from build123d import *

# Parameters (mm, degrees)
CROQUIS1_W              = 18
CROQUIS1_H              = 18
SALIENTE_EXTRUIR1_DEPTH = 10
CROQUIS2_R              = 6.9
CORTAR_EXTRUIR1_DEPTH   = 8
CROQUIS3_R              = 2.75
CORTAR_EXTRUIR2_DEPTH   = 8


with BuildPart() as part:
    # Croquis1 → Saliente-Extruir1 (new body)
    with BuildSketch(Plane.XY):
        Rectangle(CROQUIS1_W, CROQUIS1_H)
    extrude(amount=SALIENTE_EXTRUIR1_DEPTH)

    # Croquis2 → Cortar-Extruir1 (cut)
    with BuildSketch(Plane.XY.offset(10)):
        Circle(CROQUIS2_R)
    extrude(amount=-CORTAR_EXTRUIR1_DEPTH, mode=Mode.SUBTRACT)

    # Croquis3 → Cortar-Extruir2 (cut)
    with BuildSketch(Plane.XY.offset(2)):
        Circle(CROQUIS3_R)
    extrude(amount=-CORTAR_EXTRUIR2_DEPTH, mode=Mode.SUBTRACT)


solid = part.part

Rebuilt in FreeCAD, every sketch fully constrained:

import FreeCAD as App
import Part
import Sketcher

V = App.Vector

doc = App.newDocument("Part")
body = doc.addObject("PartDesign::Body", "Body")

# Sketch on XY plane
sketch1 = body.newObject("Sketcher::SketchObject", "Sketch")
sketch1.AttachmentSupport = (doc.getObject("XY_Plane"), [""])
sketch1.MapMode = "FlatFace"
sketch1.addGeometry(Part.LineSegment(V(-9, 9, 0), V(-9, -9, 0)), False)
sketch1.addGeometry(Part.LineSegment(V(-9, -9, 0), V(9, -9, 0)), False)
sketch1.addGeometry(Part.LineSegment(V(9, -9, 0), V(9, 9, 0)), False)
sketch1.addGeometry(Part.LineSegment(V(9, 9, 0), V(-9, 9, 0)), False)
sketch1.addConstraint(Sketcher.Constraint("Coincident", 0, 2, 1, 1))
sketch1.addConstraint(Sketcher.Constraint("Coincident", 1, 2, 2, 1))
sketch1.addConstraint(Sketcher.Constraint("Coincident", 2, 2, 3, 1))
sketch1.addConstraint(Sketcher.Constraint("Coincident", 3, 2, 0, 1))
sketch1.addConstraint(Sketcher.Constraint("Vertical", 0))
sketch1.addConstraint(Sketcher.Constraint("Horizontal", 1))
sketch1.addConstraint(Sketcher.Constraint("Vertical", 2))
sketch1.addConstraint(Sketcher.Constraint("Horizontal", 3))
sketch1.addConstraint(Sketcher.Constraint("Symmetric", 0, 2, 2, 2, -1, 1))
sketch1.addConstraint(Sketcher.Constraint("Equal", 3, 0))
sketch1.addConstraint(Sketcher.Constraint("DistanceX", 1, 1, 1, 2, 18.0))
pad1 = body.newObject("PartDesign::Pad", "Pad")
pad1.Profile = sketch1
pad1.Length = 10

# Sketch on XY plane
sketch2 = body.newObject("Sketcher::SketchObject", "Sketch001")
sketch2.AttachmentSupport = (doc.getObject("XY_Plane"), [""])
sketch2.MapMode = "FlatFace"
sketch2.AttachmentOffset = App.Placement(V(0, 0, 10), App.Rotation())
sketch2.addGeometry(Part.Circle(V(0, 0, 0), V(0, 0, 1), 6.9), False)
sketch2.addConstraint(Sketcher.Constraint("Coincident", 0, 3, -1, 1))
sketch2.addConstraint(Sketcher.Constraint("Diameter", 0, 13.8))
pocket1 = body.newObject("PartDesign::Pocket", "Pocket")
pocket1.Profile = sketch2
pocket1.Length = 8

# Sketch on XY plane
sketch3 = body.newObject("Sketcher::SketchObject", "Sketch002")
sketch3.AttachmentSupport = (doc.getObject("XY_Plane"), [""])
sketch3.MapMode = "FlatFace"
sketch3.AttachmentOffset = App.Placement(V(0, 0, 2), App.Rotation())
sketch3.addGeometry(Part.Circle(V(0, 0, 0), V(0, 0, 1), 2.75), False)
sketch3.addConstraint(Sketcher.Constraint("Coincident", 0, 3, -1, 1))
sketch3.addConstraint(Sketcher.Constraint("Diameter", 0, 5.5))
pocket2 = body.newObject("PartDesign::Pocket", "Pocket001")
pocket2.Profile = sketch3
pocket2.Length = 8

doc.recompute()
